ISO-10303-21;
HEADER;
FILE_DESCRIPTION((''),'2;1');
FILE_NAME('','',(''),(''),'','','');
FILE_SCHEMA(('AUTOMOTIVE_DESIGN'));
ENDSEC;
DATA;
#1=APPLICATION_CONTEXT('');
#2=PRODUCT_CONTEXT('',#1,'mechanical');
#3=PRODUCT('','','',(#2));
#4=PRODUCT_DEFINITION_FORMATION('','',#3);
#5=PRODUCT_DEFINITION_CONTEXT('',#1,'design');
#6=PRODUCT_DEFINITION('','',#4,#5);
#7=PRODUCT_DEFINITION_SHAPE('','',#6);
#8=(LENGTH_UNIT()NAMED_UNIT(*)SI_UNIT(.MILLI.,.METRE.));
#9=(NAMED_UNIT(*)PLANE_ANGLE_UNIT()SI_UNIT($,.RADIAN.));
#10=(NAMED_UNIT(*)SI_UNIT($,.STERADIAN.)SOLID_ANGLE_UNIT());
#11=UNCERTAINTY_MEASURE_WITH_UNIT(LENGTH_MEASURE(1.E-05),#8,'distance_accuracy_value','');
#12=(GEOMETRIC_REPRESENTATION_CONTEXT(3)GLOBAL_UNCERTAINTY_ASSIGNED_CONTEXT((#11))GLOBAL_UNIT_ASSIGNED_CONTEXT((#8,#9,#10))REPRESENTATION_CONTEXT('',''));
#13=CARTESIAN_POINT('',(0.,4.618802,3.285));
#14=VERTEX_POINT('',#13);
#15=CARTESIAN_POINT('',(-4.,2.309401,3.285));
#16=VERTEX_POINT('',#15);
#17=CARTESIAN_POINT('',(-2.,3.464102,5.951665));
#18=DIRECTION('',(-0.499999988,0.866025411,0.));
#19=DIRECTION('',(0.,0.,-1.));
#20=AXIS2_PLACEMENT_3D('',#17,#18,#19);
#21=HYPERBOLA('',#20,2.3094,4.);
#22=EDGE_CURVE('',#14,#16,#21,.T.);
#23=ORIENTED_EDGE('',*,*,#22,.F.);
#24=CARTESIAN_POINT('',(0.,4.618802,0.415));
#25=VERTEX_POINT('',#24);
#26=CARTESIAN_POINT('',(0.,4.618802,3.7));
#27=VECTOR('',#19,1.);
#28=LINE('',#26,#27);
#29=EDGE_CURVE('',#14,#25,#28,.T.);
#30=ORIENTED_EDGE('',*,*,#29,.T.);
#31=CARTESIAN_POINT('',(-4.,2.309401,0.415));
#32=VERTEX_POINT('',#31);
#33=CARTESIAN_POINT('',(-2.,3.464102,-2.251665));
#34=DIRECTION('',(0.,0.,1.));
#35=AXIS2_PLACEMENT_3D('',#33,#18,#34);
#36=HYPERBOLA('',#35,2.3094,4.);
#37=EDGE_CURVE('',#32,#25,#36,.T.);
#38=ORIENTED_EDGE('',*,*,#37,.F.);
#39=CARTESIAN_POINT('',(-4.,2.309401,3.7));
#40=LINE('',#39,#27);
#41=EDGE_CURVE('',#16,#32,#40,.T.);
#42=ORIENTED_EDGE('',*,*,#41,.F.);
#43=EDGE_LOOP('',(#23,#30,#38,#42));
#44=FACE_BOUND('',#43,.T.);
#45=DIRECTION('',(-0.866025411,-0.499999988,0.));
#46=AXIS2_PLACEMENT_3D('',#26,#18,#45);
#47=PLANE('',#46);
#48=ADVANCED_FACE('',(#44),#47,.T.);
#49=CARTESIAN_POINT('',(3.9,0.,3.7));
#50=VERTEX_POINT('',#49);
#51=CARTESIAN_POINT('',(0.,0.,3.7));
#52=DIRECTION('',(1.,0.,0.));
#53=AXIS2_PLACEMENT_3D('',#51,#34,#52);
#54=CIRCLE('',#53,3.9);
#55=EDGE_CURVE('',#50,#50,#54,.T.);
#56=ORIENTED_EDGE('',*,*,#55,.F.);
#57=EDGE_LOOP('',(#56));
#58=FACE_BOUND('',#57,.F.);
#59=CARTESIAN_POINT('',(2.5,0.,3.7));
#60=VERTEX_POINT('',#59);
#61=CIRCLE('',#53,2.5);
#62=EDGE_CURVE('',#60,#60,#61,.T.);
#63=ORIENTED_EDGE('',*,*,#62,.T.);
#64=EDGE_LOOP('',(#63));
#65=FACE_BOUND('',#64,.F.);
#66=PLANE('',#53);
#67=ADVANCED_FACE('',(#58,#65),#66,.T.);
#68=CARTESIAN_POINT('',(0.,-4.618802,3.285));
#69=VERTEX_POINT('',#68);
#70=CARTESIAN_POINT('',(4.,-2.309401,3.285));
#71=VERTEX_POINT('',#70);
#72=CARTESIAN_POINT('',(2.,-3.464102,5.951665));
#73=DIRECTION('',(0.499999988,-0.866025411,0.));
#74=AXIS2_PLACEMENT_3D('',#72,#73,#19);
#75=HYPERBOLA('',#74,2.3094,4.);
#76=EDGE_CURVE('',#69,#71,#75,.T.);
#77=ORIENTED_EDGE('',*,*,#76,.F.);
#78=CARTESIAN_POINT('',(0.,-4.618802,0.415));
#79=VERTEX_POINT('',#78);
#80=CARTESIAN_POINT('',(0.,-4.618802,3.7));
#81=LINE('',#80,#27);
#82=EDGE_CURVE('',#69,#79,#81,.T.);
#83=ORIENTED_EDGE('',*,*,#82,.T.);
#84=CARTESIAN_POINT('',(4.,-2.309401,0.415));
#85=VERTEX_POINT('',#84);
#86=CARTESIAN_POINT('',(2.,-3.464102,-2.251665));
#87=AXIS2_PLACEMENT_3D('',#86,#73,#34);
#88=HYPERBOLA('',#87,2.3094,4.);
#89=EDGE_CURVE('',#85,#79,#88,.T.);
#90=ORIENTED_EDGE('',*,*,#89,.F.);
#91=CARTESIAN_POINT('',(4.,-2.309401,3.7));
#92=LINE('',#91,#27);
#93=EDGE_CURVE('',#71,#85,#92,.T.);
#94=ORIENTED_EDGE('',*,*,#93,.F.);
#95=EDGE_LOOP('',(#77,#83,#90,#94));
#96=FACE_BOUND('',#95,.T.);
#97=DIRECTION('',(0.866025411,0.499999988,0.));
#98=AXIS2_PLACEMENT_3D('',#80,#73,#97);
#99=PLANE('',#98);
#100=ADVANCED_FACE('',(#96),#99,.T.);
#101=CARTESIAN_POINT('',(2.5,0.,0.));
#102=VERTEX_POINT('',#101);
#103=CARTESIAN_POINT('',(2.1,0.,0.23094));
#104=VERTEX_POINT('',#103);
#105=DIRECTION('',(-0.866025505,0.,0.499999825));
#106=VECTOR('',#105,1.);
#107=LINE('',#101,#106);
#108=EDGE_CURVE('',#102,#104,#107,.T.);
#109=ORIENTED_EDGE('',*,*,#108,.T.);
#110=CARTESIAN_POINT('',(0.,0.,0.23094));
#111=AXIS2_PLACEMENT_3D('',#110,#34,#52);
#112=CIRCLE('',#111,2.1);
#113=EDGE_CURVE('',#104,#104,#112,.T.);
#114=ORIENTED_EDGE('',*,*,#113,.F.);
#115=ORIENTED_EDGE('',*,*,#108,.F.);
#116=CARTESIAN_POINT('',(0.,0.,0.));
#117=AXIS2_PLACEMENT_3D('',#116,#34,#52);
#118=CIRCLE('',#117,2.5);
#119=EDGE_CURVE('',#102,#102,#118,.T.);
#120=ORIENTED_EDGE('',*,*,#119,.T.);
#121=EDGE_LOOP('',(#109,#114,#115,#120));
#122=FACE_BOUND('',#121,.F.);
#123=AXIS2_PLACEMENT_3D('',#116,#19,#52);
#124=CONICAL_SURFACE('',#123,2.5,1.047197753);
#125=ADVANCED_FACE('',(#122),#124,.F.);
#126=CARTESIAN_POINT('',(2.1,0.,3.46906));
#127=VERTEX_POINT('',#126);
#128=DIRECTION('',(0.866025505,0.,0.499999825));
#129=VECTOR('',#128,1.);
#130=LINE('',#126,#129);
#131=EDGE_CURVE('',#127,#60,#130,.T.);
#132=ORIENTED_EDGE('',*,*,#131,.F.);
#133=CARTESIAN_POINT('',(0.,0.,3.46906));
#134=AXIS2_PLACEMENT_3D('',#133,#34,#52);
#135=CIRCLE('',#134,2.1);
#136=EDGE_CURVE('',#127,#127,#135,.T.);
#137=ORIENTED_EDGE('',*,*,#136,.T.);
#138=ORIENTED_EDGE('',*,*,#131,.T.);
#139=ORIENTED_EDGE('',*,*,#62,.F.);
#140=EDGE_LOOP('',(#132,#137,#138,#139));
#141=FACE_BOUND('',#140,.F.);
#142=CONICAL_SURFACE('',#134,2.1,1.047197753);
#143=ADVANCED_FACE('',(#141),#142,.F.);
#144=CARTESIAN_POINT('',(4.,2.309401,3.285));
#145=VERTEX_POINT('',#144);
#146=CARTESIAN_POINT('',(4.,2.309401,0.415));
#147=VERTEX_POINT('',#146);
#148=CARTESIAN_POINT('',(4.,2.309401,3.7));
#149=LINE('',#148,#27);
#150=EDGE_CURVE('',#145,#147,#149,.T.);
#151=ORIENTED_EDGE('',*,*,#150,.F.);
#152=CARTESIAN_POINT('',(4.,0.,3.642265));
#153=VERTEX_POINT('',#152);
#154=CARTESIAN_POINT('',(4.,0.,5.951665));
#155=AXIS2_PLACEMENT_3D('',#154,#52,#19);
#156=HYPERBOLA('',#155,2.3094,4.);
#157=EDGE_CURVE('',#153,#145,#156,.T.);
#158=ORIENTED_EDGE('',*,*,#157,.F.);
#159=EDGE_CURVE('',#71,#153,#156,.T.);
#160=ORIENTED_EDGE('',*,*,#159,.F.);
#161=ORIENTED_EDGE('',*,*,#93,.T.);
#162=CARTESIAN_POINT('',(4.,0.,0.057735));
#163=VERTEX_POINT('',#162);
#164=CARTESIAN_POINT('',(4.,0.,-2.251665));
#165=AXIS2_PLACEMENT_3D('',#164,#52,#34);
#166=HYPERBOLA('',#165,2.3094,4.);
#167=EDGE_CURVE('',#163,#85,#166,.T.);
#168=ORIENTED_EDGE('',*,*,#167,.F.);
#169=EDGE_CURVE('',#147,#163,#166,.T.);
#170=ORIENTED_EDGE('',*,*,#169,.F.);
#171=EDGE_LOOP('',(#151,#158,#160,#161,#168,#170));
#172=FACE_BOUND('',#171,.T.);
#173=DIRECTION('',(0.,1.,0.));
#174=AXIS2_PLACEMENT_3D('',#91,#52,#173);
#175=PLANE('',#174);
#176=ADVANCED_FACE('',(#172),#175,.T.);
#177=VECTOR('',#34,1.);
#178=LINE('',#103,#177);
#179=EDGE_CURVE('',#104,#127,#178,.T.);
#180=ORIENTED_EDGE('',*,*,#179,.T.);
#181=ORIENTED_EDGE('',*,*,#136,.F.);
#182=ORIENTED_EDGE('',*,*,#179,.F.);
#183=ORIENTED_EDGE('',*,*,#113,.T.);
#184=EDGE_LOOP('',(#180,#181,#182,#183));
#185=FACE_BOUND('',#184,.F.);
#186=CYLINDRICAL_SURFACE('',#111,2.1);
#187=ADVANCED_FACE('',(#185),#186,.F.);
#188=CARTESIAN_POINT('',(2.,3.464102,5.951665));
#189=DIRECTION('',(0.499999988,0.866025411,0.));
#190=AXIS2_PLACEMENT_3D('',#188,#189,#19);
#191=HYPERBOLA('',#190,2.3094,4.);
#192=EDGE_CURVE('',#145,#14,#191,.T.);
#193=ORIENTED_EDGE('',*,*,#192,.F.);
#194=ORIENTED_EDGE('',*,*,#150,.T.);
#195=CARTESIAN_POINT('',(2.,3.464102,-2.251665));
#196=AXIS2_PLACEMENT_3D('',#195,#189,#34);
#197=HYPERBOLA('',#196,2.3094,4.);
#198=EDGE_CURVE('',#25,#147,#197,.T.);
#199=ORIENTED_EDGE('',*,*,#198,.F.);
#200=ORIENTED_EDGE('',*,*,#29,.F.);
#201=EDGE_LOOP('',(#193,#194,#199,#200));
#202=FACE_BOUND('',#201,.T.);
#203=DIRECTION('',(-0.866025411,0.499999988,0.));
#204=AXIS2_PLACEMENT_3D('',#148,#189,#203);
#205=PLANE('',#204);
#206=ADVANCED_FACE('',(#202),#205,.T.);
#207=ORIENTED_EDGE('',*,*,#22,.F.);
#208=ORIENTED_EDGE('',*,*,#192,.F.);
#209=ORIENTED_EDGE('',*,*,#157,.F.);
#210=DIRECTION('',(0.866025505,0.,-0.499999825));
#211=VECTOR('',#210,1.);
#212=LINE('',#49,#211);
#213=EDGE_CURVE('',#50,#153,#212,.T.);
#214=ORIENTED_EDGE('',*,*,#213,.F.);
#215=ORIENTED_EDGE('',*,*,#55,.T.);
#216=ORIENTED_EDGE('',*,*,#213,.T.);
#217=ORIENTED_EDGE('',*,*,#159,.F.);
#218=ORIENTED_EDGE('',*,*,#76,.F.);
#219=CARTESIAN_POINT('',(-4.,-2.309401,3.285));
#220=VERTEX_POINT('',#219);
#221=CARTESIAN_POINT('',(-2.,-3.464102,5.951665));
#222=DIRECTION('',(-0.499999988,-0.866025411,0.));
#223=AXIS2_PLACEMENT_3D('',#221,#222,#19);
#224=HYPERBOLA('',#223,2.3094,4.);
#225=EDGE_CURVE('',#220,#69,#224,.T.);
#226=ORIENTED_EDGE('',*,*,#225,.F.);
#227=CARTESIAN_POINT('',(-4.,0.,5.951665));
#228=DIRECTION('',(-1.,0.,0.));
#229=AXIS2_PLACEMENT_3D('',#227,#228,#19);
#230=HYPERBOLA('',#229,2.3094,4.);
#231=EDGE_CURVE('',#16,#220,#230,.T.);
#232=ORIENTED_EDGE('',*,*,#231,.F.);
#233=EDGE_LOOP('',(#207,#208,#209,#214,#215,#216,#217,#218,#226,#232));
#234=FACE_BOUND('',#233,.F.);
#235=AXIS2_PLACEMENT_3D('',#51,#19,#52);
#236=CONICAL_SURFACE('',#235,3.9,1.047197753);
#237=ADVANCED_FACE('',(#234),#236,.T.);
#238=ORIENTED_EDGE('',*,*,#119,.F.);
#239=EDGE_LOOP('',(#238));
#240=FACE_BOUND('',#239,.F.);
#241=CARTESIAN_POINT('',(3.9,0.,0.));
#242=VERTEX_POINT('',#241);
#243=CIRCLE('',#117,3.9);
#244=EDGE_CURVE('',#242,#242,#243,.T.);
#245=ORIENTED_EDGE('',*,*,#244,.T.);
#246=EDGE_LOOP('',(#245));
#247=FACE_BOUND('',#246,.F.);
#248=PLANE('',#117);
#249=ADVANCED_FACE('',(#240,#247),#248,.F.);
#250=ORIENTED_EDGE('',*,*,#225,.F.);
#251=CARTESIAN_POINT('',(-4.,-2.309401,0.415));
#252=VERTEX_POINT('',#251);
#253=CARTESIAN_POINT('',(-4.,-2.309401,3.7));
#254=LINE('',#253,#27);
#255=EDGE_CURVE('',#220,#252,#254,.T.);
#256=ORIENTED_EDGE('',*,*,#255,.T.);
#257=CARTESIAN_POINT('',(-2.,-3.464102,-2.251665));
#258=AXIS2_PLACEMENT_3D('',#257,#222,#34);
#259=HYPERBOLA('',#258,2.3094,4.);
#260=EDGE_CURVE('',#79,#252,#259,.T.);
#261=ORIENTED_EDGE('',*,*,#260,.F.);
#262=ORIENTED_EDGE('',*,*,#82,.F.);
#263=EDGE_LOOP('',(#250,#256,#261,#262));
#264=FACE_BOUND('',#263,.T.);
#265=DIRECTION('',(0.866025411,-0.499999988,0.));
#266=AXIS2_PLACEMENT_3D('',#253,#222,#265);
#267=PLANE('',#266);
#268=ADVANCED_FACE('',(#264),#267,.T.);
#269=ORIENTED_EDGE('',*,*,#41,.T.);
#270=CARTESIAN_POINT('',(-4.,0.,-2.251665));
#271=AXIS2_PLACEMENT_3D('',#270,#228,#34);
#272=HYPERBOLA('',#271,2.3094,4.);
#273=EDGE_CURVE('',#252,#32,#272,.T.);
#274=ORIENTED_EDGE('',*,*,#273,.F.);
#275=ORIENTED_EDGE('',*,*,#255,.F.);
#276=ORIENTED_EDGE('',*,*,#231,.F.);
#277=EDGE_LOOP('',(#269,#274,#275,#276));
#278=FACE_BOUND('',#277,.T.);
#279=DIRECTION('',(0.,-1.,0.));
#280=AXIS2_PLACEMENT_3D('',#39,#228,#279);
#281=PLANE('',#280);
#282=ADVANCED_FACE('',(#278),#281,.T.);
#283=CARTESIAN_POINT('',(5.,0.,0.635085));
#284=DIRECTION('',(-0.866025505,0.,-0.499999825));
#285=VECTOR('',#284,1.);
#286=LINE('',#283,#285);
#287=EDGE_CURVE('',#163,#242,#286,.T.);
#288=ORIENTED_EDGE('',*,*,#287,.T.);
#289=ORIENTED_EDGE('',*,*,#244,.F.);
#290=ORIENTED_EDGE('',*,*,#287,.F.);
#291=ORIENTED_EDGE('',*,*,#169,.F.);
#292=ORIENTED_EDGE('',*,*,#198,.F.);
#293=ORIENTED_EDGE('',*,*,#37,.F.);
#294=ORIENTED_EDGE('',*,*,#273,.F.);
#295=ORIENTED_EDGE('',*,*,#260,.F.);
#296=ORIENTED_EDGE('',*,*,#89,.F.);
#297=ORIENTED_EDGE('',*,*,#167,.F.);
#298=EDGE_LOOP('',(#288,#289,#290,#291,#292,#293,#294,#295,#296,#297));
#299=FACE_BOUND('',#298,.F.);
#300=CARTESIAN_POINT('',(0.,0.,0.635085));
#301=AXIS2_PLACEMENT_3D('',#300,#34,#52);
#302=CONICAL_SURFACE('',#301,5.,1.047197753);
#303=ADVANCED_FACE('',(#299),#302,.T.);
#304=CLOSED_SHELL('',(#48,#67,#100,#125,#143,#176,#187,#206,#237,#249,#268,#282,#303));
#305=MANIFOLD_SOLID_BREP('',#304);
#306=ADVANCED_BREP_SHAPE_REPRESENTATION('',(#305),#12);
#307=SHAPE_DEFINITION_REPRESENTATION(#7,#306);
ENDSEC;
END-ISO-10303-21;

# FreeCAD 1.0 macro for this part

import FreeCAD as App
import Part
import Sketcher
Q = App.Units.Quantity

doc = App.newDocument("Part")
body = doc.addObject("PartDesign::Body", "Body")

# Sketch on XZ plane
sketch1 = body.newObject("Sketcher::SketchObject", "Sketch")
sketch1.AttachmentSupport = (doc.getObject("XZ_Plane"), [""])
sketch1.MapMode = "FlatFace"
sketch1.addGeometry(Part.LineSegment(App.Vector(2.1, 0.23094, 0), App.Vector(2.5, 0, 0)), False)
sketch1.addGeometry(Part.LineSegment(App.Vector(2.5, 0, 0), App.Vector(3.9, 0, 0)), False)
sketch1.addGeometry(Part.LineSegment(App.Vector(3.9, 0, 0), App.Vector(5, 0.635085, 0)), False)
sketch1.addGeometry(Part.LineSegment(App.Vector(5, 0.635085, 0), App.Vector(5, 3.064915, 0)), False)
sketch1.addGeometry(Part.LineSegment(App.Vector(5, 3.064915, 0), App.Vector(3.9, 3.7, 0)), False)
sketch1.addGeometry(Part.LineSegment(App.Vector(3.9, 3.7, 0), App.Vector(2.5, 3.7, 0)), False)
sketch1.addGeometry(Part.LineSegment(App.Vector(2.5, 3.7, 0), App.Vector(2.1, 3.46906, 0)), False)
sketch1.addGeometry(Part.LineSegment(App.Vector(2.1, 3.46906, 0), App.Vector(2.1, 0.23094, 0)), False)
sketch1.addConstraint(Sketcher.Constraint("Coincident", 0, 2, 1, 1))
sketch1.addConstraint(Sketcher.Constraint("Coincident", 1, 2, 2, 1))
sketch1.addConstraint(Sketcher.Constraint("Coincident", 2, 2, 3, 1))
sketch1.addConstraint(Sketcher.Constraint("Coincident", 3, 2, 4, 1))
sketch1.addConstraint(Sketcher.Constraint("Coincident", 4, 2, 5, 1))
sketch1.addConstraint(Sketcher.Constraint("Coincident", 5, 2, 6, 1))
sketch1.addConstraint(Sketcher.Constraint("Coincident", 6, 2, 7, 1))
sketch1.addConstraint(Sketcher.Constraint("Coincident", 7, 2, 0, 1))
sketch1.addConstraint(Sketcher.Constraint("Horizontal", 1))
sketch1.addConstraint(Sketcher.Constraint("Vertical", 3))
sketch1.addConstraint(Sketcher.Constraint("Horizontal", 5))
sketch1.addConstraint(Sketcher.Constraint("Vertical", 7))
sketch1.addConstraint(Sketcher.Constraint("PointOnObject", 0, 2, -1))
sketch1.addConstraint(Sketcher.Constraint("Parallel", 0, 4))
sketch1.addConstraint(Sketcher.Constraint("Parallel", 2, 6))
sketch1.addConstraint(Sketcher.Constraint("Vertical", 1, 2, 4, 2))
sketch1.addConstraint(Sketcher.Constraint("Vertical", 0, 2, 5, 2))
sketch1.addConstraint(Sketcher.Constraint("Equal", 2, 4))
sketch1.addConstraint(Sketcher.Constraint("Angle", 0, Q("-29.999988 deg")))
sketch1.addConstraint(Sketcher.Constraint("DistanceX", 1, 1, 1, 2, 1.4))
sketch1.addConstraint(Sketcher.Constraint("DistanceX", -1, 1, 2, 2, 5.0))
sketch1.addConstraint(Sketcher.Constraint("DistanceX", -1, 1, 0, 2, 2.5))
sketch1.addConstraint(Sketcher.Constraint("DistanceY", -1, 1, 4, 2, 3.7))
sketch1.addConstraint(Sketcher.Constraint("DistanceX", -1, 1, 6, 2, 2.1))
revolution = body.newObject("PartDesign::Revolution", "Revolution")
revolution.Profile = sketch1
revolution.ReferenceAxis = (sketch1, ["V_Axis"])
revolution.Angle = 360

# Sketch on XY plane
sketch2 = body.newObject("Sketcher::SketchObject", "Sketch001")
sketch2.AttachmentSupport = (doc.getObject("XY_Plane"), [""])
sketch2.MapMode = "FlatFace"
sketch2.AttachmentOffset = App.Placement(App.Vector(0, 0, 3.7), App.Rotation())
sketch2.addGeometry(Part.Circle(App.Vector(0, 0, 0), App.Vector(0, 0, 1), 5), False)
sketch2.addGeometry(Part.LineSegment(App.Vector(4, 2.309401, 0), App.Vector(4, -2.309401, 0)), False)
sketch2.addGeometry(Part.LineSegment(App.Vector(4, -2.309401, 0), App.Vector(0, -4.618802, 0)), False)
sketch2.addGeometry(Part.LineSegment(App.Vector(0, -4.618802, 0), App.Vector(-4, -2.309401, 0)), False)
sketch2.addGeometry(Part.LineSegment(App.Vector(-4, -2.309401, 0), App.Vector(-4, 2.309401, 0)), False)
sketch2.addGeometry(Part.LineSegment(App.Vector(-4, 2.309401, 0), App.Vector(0, 4.618802, 0)), False)
sketch2.addGeometry(Part.LineSegment(App.Vector(0, 4.618802, 0), App.Vector(4, 2.309401, 0)), False)
sketch2.addConstraint(Sketcher.Constraint("Coincident", 1, 2, 2, 1))
sketch2.addConstraint(Sketcher.Constraint("Coincident", 2, 2, 3, 1))
sketch2.addConstraint(Sketcher.Constraint("Coincident", 3, 2, 4, 1))
sketch2.addConstraint(Sketcher.Constraint("Coincident", 4, 2, 5, 1))
sketch2.addConstraint(Sketcher.Constraint("Coincident", 5, 2, 6, 1))
sketch2.addConstraint(Sketcher.Constraint("Coincident", 6, 2, 1, 1))
sketch2.addConstraint(Sketcher.Constraint("Vertical", 1))
sketch2.addConstraint(Sketcher.Constraint("Vertical", 4))
sketch2.addConstraint(Sketcher.Constraint("Coincident", 0, 3, -1, 1))
sketch2.addConstraint(Sketcher.Constraint("Symmetric", 1, 2, 4, 2, -1, 1))
sketch2.addConstraint(Sketcher.Constraint("Symmetric", 2, 2, 5, 2, -1, 1))
sketch2.addConstraint(Sketcher.Constraint("PointOnObject", 2, 2, -2))
sketch2.addConstraint(Sketcher.Constraint("Parallel", 3, 6))
sketch2.addConstraint(Sketcher.Constraint("Horizontal", 1, 2, 3, 2))
sketch2.addConstraint(Sketcher.Constraint("Diameter", 0, 10.0))
sketch2.addConstraint(Sketcher.Constraint("Angle", 2, Q("-150.000001 deg")))
sketch2.addConstraint(Sketcher.Constraint("DistanceX", -1, 1, 1, 2, 4.0))
sketch2.addConstraint(Sketcher.Constraint("DistanceY", 1, 2, 1, 1, 4.618802))
pocket1 = body.newObject("PartDesign::Pocket", "Pocket")
pocket1.Profile = sketch2
pocket1.Length = 3.7

doc.recompute()
